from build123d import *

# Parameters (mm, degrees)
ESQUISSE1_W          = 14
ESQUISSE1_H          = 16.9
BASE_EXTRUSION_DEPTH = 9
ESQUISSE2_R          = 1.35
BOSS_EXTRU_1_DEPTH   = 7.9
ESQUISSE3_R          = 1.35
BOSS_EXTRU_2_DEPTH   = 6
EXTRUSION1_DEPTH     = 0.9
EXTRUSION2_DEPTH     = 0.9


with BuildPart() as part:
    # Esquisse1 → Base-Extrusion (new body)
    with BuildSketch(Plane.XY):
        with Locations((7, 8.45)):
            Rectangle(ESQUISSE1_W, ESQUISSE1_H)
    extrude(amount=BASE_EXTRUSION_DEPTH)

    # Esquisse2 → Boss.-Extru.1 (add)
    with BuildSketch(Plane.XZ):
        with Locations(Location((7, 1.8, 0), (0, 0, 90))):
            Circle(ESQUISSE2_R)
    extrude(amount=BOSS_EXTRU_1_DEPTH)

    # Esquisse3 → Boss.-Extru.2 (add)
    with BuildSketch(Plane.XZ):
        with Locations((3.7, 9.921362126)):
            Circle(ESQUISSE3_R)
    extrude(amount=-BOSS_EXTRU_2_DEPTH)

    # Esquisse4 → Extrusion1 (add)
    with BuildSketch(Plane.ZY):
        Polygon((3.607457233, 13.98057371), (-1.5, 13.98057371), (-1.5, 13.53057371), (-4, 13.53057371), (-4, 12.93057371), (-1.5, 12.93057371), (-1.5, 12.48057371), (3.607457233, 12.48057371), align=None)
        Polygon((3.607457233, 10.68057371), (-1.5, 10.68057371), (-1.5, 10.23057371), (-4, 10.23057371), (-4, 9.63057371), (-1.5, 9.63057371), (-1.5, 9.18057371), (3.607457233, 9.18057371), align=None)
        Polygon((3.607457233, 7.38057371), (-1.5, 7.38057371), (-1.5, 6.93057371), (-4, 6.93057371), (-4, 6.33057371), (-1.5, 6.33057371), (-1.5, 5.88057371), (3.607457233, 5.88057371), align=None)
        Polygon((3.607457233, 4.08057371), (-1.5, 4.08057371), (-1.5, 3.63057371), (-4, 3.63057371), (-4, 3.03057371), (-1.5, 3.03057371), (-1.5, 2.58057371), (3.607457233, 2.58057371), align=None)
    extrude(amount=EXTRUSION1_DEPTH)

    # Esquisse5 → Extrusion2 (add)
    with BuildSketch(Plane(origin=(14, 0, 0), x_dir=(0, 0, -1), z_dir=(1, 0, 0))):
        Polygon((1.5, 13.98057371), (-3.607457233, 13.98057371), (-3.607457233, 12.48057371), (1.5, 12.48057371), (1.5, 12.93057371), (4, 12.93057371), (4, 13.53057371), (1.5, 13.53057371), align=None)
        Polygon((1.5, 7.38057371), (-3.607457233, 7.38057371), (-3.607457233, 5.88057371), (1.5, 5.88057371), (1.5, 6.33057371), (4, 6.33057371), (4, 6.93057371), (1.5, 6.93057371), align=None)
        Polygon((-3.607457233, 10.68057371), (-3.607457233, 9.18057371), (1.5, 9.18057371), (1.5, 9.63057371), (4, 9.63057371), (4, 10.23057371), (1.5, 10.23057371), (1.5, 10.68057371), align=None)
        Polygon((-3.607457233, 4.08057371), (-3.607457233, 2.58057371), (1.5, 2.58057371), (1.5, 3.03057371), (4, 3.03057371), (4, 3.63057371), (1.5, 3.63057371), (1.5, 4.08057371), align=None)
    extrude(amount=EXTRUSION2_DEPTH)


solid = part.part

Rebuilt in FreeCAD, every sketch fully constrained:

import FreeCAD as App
import Part
import Sketcher

V = App.Vector

doc = App.newDocument("Part")
body = doc.addObject("PartDesign::Body", "Body")

sketch1 = doc.addObject("Sketcher::SketchObject", "Sketch")
body.addObject(sketch1)
sketch1.AttachmentSupport = (doc.XY_Plane, [""])
sketch1.MapMode = "FlatFace"
sketch1.addGeometry([
    Part.LineSegment(V(0, 17, 0), V(0, 0, 0)),
    Part.LineSegment(V(0, 0, 0), V(14, 0, 0)),
    Part.LineSegment(V(14, 0, 0), V(14, 17, 0)),
    Part.LineSegment(V(14, 17, 0), V(0, 17, 0)),
], False)
sketch1.addConstraint([
    Sketcher.Constraint("Coincident", 0, 2, 1, 1),
    Sketcher.Constraint("Coincident", 1, 2, 2, 1),
    Sketcher.Constraint("Coincident", 2, 2, 3, 1),
    Sketcher.Constraint("Coincident", 3, 2, 0, 1),
    Sketcher.Constraint("Vertical", 0),
    Sketcher.Constraint("Horizontal", 1),
    Sketcher.Constraint("Vertical", 2),
    Sketcher.Constraint("Horizontal", 3),
    Sketcher.Constraint("Coincident", 0, 2, -1, 1),
    Sketcher.Constraint("DistanceX", 1, 1, 1, 2, 14.0),
    Sketcher.Constraint("DistanceY", 0, 2, 0, 1, 16.9),
])
pad1 = doc.addObject("PartDesign::Pad", "Pad")
body.addObject(pad1)
pad1.Profile = sketch1
pad1.Length = 9

sketch2 = doc.addObject("Sketcher::SketchObject", "Sketch001")
body.addObject(sketch2)
sketch2.AttachmentSupport = (doc.XZ_Plane, [""])
sketch2.MapMode = "FlatFace"
sketch2.addGeometry(Part.Circle(V(7, 1.8, 0), V(0, 0, 1), 1.4), False)
sketch2.addConstraint([
    Sketcher.Constraint("Diameter", 0, 2.7),
    Sketcher.Constraint("DistanceX", -1, 1, 0, 3, 7.0),
    Sketcher.Constraint("DistanceY", -1, 1, 0, 3, 1.8),
])
pad2 = doc.addObject("PartDesign::Pad", "Pad001")
body.addObject(pad2)
pad2.Profile = sketch2
pad2.Length = 7.9

sketch3 = doc.addObject("Sketcher::SketchObject", "Sketch002")
body.addObject(sketch3)
sketch3.AttachmentSupport = (doc.XZ_Plane, [""])
sketch3.MapMode = "FlatFace"
sketch3.addGeometry(Part.Circle(V(3.7, 9.9, 0), V(0, 0, 1), 1.4), False)
sketch3.addConstraint([
    Sketcher.Constraint("Diameter", 0, 2.7),
    Sketcher.Constraint("DistanceX", -1, 1, 0, 3, 3.7),
    Sketcher.Constraint("DistanceY", -1, 1, 0, 3, 9.921362),
])
pad3 = doc.addObject("PartDesign::Pad", "Pad002")
body.addObject(pad3)
pad3.Profile = sketch3
pad3.Length = 6
pad3.Reversed = True

sketch4 = doc.addObject("Sketcher::SketchObject", "Sketch003")
body.addObject(sketch4)
sketch4.AttachmentSupport = (doc.YZ_Plane, [""])
sketch4.MapMode = "FlatFace"
sketch4.addGeometry([
    Part.LineSegment(V(13.98, 3.61, 0), V(13.98, -1.5, 0)),
    Part.LineSegment(V(13.98, -1.5, 0), V(13.53, -1.5, 0)),
    Part.LineSegment(V(13.53, -1.5, 0), V(13.53, -4, 0)),
    Part.LineSegment(V(13.53, -4, 0), V(12.93, -4, 0)),
    Part.LineSegment(V(12.93, -4, 0), V(12.93, -1.5, 0)),
    Part.LineSegment(V(12.93, -1.5, 0), V(12.48, -1.5, 0)),
    Part.LineSegment(V(12.48, -1.5, 0), V(12.48, 3.61, 0)),
    Part.LineSegment(V(12.48, 3.61, 0), V(13.98, 3.61, 0)),
    Part.LineSegment(V(10.68, 3.61, 0), V(10.68, -1.5, 0)),
    Part.LineSegment(V(10.68, -1.5, 0), V(10.23, -1.5, 0)),
    Part.LineSegment(V(10.23, -1.5, 0), V(10.23, -4, 0)),
    Part.LineSegment(V(10.23, -4, 0), V(9.63, -4, 0)),
    Part.LineSegment(V(9.63, -4, 0), V(9.63, -1.5, 0)),
    Part.LineSegment(V(9.63, -1.5, 0), V(9.18, -1.5, 0)),
    Part.LineSegment(V(9.18, -1.5, 0), V(9.18, 3.61, 0)),
    Part.LineSegment(V(9.18, 3.61, 0), V(10.68, 3.61, 0)),
    Part.LineSegment(V(7.38, 3.61, 0), V(7.38, -1.5, 0)),
    Part.LineSegment(V(7.38, -1.5, 0), V(6.93, -1.5, 0)),
    Part.LineSegment(V(6.93, -1.5, 0), V(6.93, -4, 0)),
    Part.LineSegment(V(6.93, -4, 0), V(6.33, -4, 0)),
    Part.LineSegment(V(6.33, -4, 0), V(6.33, -1.5, 0)),
    Part.LineSegment(V(6.33, -1.5, 0), V(5.88, -1.5, 0)),
    Part.LineSegment(V(5.88, -1.5, 0), V(5.88, 3.61, 0)),
    Part.LineSegment(V(5.88, 3.61, 0), V(7.38, 3.61, 0)),
    Part.LineSegment(V(4.08, 3.61, 0), V(4.08, -1.5, 0)),
    Part.LineSegment(V(4.08, -1.5, 0), V(3.63, -1.5, 0)),
    Part.LineSegment(V(3.63, -1.5, 0), V(3.63, -4, 0)),
    Part.LineSegment(V(3.63, -4, 0), V(3.03, -4, 0)),
    Part.LineSegment(V(3.03, -4, 0), V(3.03, -1.5, 0)),
    Part.LineSegment(V(3.03, -1.5, 0), V(2.58, -1.5, 0)),
    Part.LineSegment(V(2.58, -1.5, 0), V(2.58, 3.61, 0)),
    Part.LineSegment(V(2.58, 3.61, 0), V(4.08, 3.61, 0)),
], False)
sketch4.addConstraint([
    Sketcher.Constraint("Coincident", 0, 2, 1, 1),
    Sketcher.Constraint("Coincident", 1, 2, 2, 1),
    Sketcher.Constraint("Coincident", 2, 2, 3, 1),
    Sketcher.Constraint("Coincident", 3, 2, 4, 1),
    Sketcher.Constraint("Coincident", 4, 2, 5, 1),
    Sketcher.Constraint("Coincident", 5, 2, 6, 1),
    Sketcher.Constraint("Coincident", 6, 2, 7, 1),
    Sketcher.Constraint("Coincident", 7, 2, 0, 1),
    Sketcher.Constraint("Coincident", 8, 2, 9, 1),
    Sketcher.Constraint("Coincident", 9, 2, 10, 1),
    Sketcher.Constraint("Coincident", 10, 2, 11, 1),
    Sketcher.Constraint("Coincident", 11, 2, 12, 1),
    Sketcher.Constraint("Coincident", 12, 2, 13, 1),
    Sketcher.Constraint("Coincident", 13, 2, 14, 1),
    Sketcher.Constraint("Coincident", 14, 2, 15, 1),
    Sketcher.Constraint("Coincident", 15, 2, 8, 1),
    Sketcher.Constraint("Coincident", 16, 2, 17, 1),
    Sketcher.Constraint("Coincident", 17, 2, 18, 1),
    Sketcher.Constraint("Coincident", 18, 2, 19, 1),
    Sketcher.Constraint("Coincident", 19, 2, 20, 1),
    Sketcher.Constraint("Coincident", 20, 2, 21, 1),
    Sketcher.Constraint("Coincident", 21, 2, 22, 1),
    Sketcher.Constraint("Coincident", 22, 2, 23, 1),
    Sketcher.Constraint("Coincident", 23, 2, 16, 1),
    Sketcher.Constraint("Coincident", 24, 2, 25, 1),
    Sketcher.Constraint("Coincident", 25, 2, 26, 1),
    Sketcher.Constraint("Coincident", 26, 2, 27, 1),
    Sketcher.Constraint("Coincident", 27, 2, 28, 1),
    Sketcher.Constraint("Coincident", 28, 2, 29, 1),
    Sketcher.Constraint("Coincident", 29, 2, 30, 1),
    Sketcher.Constraint("Coincident", 30, 2, 31, 1),
    Sketcher.Constraint("Coincident", 31, 2, 24, 1),
    Sketcher.Constraint("Vertical", 0),
    Sketcher.Constraint("Horizontal", 1),
    Sketcher.Constraint("Vertical", 2),
    Sketcher.Constraint("Horizontal", 3),
    Sketcher.Constraint("Vertical", 4),
    Sketcher.Constraint("Horizontal", 5),
    Sketcher.Constraint("Vertical", 6),
    Sketcher.Constraint("Horizontal", 7),
    Sketcher.Constraint("Vertical", 8),
    Sketcher.Constraint("Horizontal", 9),
    Sketcher.Constraint("Vertical", 10),
    Sketcher.Constraint("Horizontal", 11),
    Sketcher.Constraint("Vertical", 12),
    Sketcher.Constraint("Horizontal", 13),
    Sketcher.Constraint("Vertical", 14),
    Sketcher.Constraint("Horizontal", 15),
    Sketcher.Constraint("Vertical", 16),
    Sketcher.Constraint("Horizontal", 17),
    Sketcher.Constraint("Vertical", 18),
    Sketcher.Constraint("Horizontal", 19),
    Sketcher.Constraint("Vertical", 20),
    Sketcher.Constraint("Horizontal", 21),
    Sketcher.Constraint("Vertical", 22),
    Sketcher.Constraint("Horizontal", 23),
    Sketcher.Constraint("Vertical", 24),
    Sketcher.Constraint("Horizontal", 25),
    Sketcher.Constraint("Vertical", 26),
    Sketcher.Constraint("Horizontal", 27),
    Sketcher.Constraint("Vertical", 28),
    Sketcher.Constraint("Horizontal", 29),
    Sketcher.Constraint("Vertical", 30),
    Sketcher.Constraint("Horizontal", 31),
    Sketcher.Constraint("Horizontal", 1, 2, 4, 2),
    Sketcher.Constraint("Horizontal", 5, 2, 8, 2),
    Sketcher.Constraint("Horizontal", 3, 2, 10, 2),
    Sketcher.Constraint("Horizontal", 9, 2, 12, 2),
    Sketcher.Constraint("Horizontal", 7, 2, 14, 2),
    Sketcher.Constraint("Horizontal", 13, 2, 16, 2),
    Sketcher.Constraint("Horizontal", 11, 2, 18, 2),
    Sketcher.Constraint("Horizontal", 17, 2, 20, 2),
    Sketcher.Constraint("Horizontal", 15, 2, 22, 2),
    Sketcher.Constraint("Horizontal", 21, 2, 24, 2),
    Sketcher.Constraint("Horizontal", 19, 2, 26, 2),
    Sketcher.Constraint("Horizontal", 25, 2, 28, 2),
    Sketcher.Constraint("Horizontal", 23, 2, 30, 2),
    Sketcher.Constraint("Equal", 1, 5),
    Sketcher.Constraint("Equal", 5, 9),
    Sketcher.Constraint("Equal", 3, 11),
    Sketcher.Constraint("Equal", 9, 13),
    Sketcher.Constraint("Equal", 13, 17),
    Sketcher.Constraint("Equal", 11, 19),
    Sketcher.Constraint("Equal", 17, 21),
    Sketcher.Constraint("Equal", 21, 25),
    Sketcher.Constraint("Equal", 19, 27),
    Sketcher.Constraint("Equal", 25, 29),
    Sketcher.Constraint("DistanceX", 3, 2, 3, 1, 0.6),
    Sketcher.Constraint("DistanceX", 7, 1, 7, 2, 1.5),
    Sketcher.Constraint("DistanceY", 2, 2, 2, 1, 2.5),
    Sketcher.Constraint("DistanceY", 2, 2, -1, 1, 4.0),
    Sketcher.Constraint("DistanceX", 8, 2, 5, 2, 1.8),
    Sketcher.Constraint("DistanceX", 16, 2, 13, 2, 1.8),
    Sketcher.Constraint("DistanceX", 24, 2, 21, 2, 1.8),
    Sketcher.Constraint("DistanceY", 0, 2, 0, 1, 5.107457),
    Sketcher.Constraint("DistanceX", -1, 1, 0, 2, 13.980574),
])
pad4 = doc.addObject("PartDesign::Pad", "Pad003")
body.addObject(pad4)
pad4.Profile = sketch4
pad4.Length = 0.9
pad4.Reversed = True

sketch5 = doc.addObject("Sketcher::SketchObject", "Sketch004")
body.addObject(sketch5)
sketch5.AttachmentSupport = (doc.YZ_Plane, [""])
sketch5.MapMode = "FlatFace"
sketch5.AttachmentOffset = App.Placement(V(0, 0, 14), App.Rotation())
sketch5.addGeometry([
    Part.LineSegment(V(13.98, -1.5, 0), V(13.98, 3.61, 0)),
    Part.LineSegment(V(13.98, 3.61, 0), V(12.48, 3.61, 0)),
    Part.LineSegment(V(12.48, 3.61, 0), V(12.48, -1.5, 0)),
    Part.LineSegment(V(12.48, -1.5, 0), V(12.93, -1.5, 0)),
    Part.LineSegment(V(12.93, -1.5, 0), V(12.93, -4, 0)),
    Part.LineSegment(V(12.93, -4, 0), V(13.53, -4, 0)),
    Part.LineSegment(V(13.53, -4, 0), V(13.53, -1.5, 0)),
    Part.LineSegment(V(13.53, -1.5, 0), V(13.98, -1.5, 0)),
    Part.LineSegment(V(7.38, -1.5, 0), V(7.38, 3.61, 0)),
    Part.LineSegment(V(7.38, 3.61, 0), V(5.88, 3.61, 0)),
    Part.LineSegment(V(5.88, 3.61, 0), V(5.88, -1.5, 0)),
    Part.LineSegment(V(5.88, -1.5, 0), V(6.33, -1.5, 0)),
    Part.LineSegment(V(6.33, -1.5, 0), V(6.33, -4, 0)),
    Part.LineSegment(V(6.33, -4, 0), V(6.93, -4, 0)),
    Part.LineSegment(V(6.93, -4, 0), V(6.93, -1.5, 0)),
    Part.LineSegment(V(6.93, -1.5, 0), V(7.38, -1.5, 0)),
    Part.LineSegment(V(10.68, 3.61, 0), V(9.18, 3.61, 0)),
    Part.LineSegment(V(9.18, 3.61, 0), V(9.18, -1.5, 0)),
    Part.LineSegment(V(9.18, -1.5, 0), V(9.63, -1.5, 0)),
    Part.LineSegment(V(9.63, -1.5, 0), V(9.63, -4, 0)),
    Part.LineSegment(V(9.63, -4, 0), V(10.23, -4, 0)),
    Part.LineSegment(V(10.23, -4, 0), V(10.23, -1.5, 0)),
    Part.LineSegment(V(10.23, -1.5, 0), V(10.68, -1.5, 0)),
    Part.LineSegment(V(10.68, -1.5, 0), V(10.68, 3.61, 0)),
    Part.LineSegment(V(4.08, 3.61, 0), V(2.58, 3.61, 0)),
    Part.LineSegment(V(2.58, 3.61, 0), V(2.58, -1.5, 0)),
    Part.LineSegment(V(2.58, -1.5, 0), V(3.03, -1.5, 0)),
    Part.LineSegment(V(3.03, -1.5, 0), V(3.03, -4, 0)),
    Part.LineSegment(V(3.03, -4, 0), V(3.63, -4, 0)),
    Part.LineSegment(V(3.63, -4, 0), V(3.63, -1.5, 0)),
    Part.LineSegment(V(3.63, -1.5, 0), V(4.08, -1.5, 0)),
    Part.LineSegment(V(4.08, -1.5, 0), V(4.08, 3.61, 0)),
], False)
sketch5.addConstraint([
    Sketcher.Constraint("Coincident", 0, 2, 1, 1),
    Sketcher.Constraint("Coincident", 1, 2, 2, 1),
    Sketcher.Constraint("Coincident", 2, 2, 3, 1),
    Sketcher.Constraint("Coincident", 3, 2, 4, 1),
    Sketcher.Constraint("Coincident", 4, 2, 5, 1),
    Sketcher.Constraint("Coincident", 5, 2, 6, 1),
    Sketcher.Constraint("Coincident", 6, 2, 7, 1),
    Sketcher.Constraint("Coincident", 7, 2, 0, 1),
    Sketcher.Constraint("Coincident", 8, 2, 9, 1),
    Sketcher.Constraint("Coincident", 9, 2, 10, 1),
    Sketcher.Constraint("Coincident", 10, 2, 11, 1),
    Sketcher.Constraint("Coincident", 11, 2, 12, 1),
    Sketcher.Constraint("Coincident", 12, 2, 13, 1),
    Sketcher.Constraint("Coincident", 13, 2, 14, 1),
    Sketcher.Constraint("Coincident", 14, 2, 15, 1),
    Sketcher.Constraint("Coincident", 15, 2, 8, 1),
    Sketcher.Constraint("Coincident", 16, 2, 17, 1),
    Sketcher.Constraint("Coincident", 17, 2, 18, 1),
    Sketcher.Constraint("Coincident", 18, 2, 19, 1),
    Sketcher.Constraint("Coincident", 19, 2, 20, 1),
    Sketcher.Constraint("Coincident", 20, 2, 21, 1),
    Sketcher.Constraint("Coincident", 21, 2, 22, 1),
    Sketcher.Constraint("Coincident", 22, 2, 23, 1),
    Sketcher.Constraint("Coincident", 23, 2, 16, 1),
    Sketcher.Constraint("Coincident", 24, 2, 25, 1),
    Sketcher.Constraint("Coincident", 25, 2, 26, 1),
    Sketcher.Constraint("Coincident", 26, 2, 27, 1),
    Sketcher.Constraint("Coincident", 27, 2, 28, 1),
    Sketcher.Constraint("Coincident", 28, 2, 29, 1),
    Sketcher.Constraint("Coincident", 29, 2, 30, 1),
    Sketcher.Constraint("Coincident", 30, 2, 31, 1),
    Sketcher.Constraint("Coincident", 31, 2, 24, 1),
    Sketcher.Constraint("Vertical", 0),
    Sketcher.Constraint("Horizontal", 1),
    Sketcher.Constraint("Vertical", 2),
    Sketcher.Constraint("Horizontal", 3),
    Sketcher.Constraint("Vertical", 4),
    Sketcher.Constraint("Horizontal", 5),
    Sketcher.Constraint("Vertical", 6),
    Sketcher.Constraint("Horizontal", 7),
    Sketcher.Constraint("Vertical", 8),
    Sketcher.Constraint("Horizontal", 9),
    Sketcher.Constraint("Vertical", 10),
    Sketcher.Constraint("Horizontal", 11),
    Sketcher.Constraint("Vertical", 12),
    Sketcher.Constraint("Horizontal", 13),
    Sketcher.Constraint("Vertical", 14),
    Sketcher.Constraint("Horizontal", 15),
    Sketcher.Constraint("Horizontal", 16),
    Sketcher.Constraint("Vertical", 17),
    Sketcher.Constraint("Horizontal", 18),
    Sketcher.Constraint("Vertical", 19),
    Sketcher.Constraint("Horizontal", 20),
    Sketcher.Constraint("Vertical", 21),
    Sketcher.Constraint("Horizontal", 22),
    Sketcher.Constraint("Vertical", 23),
    Sketcher.Constraint("Horizontal", 24),
    Sketcher.Constraint("Vertical", 25),
    Sketcher.Constraint("Horizontal", 26),
    Sketcher.Constraint("Vertical", 27),
    Sketcher.Constraint("Horizontal", 28),
    Sketcher.Constraint("Vertical", 29),
    Sketcher.Constraint("Horizontal", 30),
    Sketcher.Constraint("Vertical", 31),
    Sketcher.Constraint("Horizontal", 3, 2, 6, 2),
    Sketcher.Constraint("Horizontal", 1, 2, 8, 2),
    Sketcher.Constraint("Horizontal", 7, 2, 10, 2),
    Sketcher.Constraint("Horizontal", 5, 2, 12, 2),
    Sketcher.Constraint("Horizontal", 11, 2, 14, 2),
    Sketcher.Constraint("Horizontal", 9, 2, 16, 2),
    Sketcher.Constraint("Horizontal", 15, 2, 17, 2),
    Sketcher.Constraint("Horizontal", 13, 2, 19, 2),
    Sketcher.Constraint("Horizontal", 18, 2, 21, 2),
    Sketcher.Constraint("Horizontal", 23, 2, 24, 2),
    Sketcher.Constraint("Horizontal", 22, 2, 25, 2),
    Sketcher.Constraint("Horizontal", 20, 2, 27, 2),
    Sketcher.Constraint("Horizontal", 26, 2, 29, 2),
    Sketcher.Constraint("Equal", 3, 7),
    Sketcher.Constraint("Equal", 1, 9),
    Sketcher.Constraint("Equal", 7, 11),
    Sketcher.Constraint("Equal", 5, 13),
    Sketcher.Constraint("Equal", 9, 16),
    Sketcher.Constraint("Equal", 15, 18),
    Sketcher.Constraint("Equal", 13, 20),
    Sketcher.Constraint("Equal", 16, 24),
    Sketcher.Constraint("Equal", 22, 26),
    Sketcher.Constraint("Equal", 20, 28),
    Sketcher.Constraint("DistanceX", 1, 2, 1, 1, 1.5),
    Sketcher.Constraint("DistanceX", 5, 1, 5, 2, 0.6),
    Sketcher.Constraint("DistanceY", 4, 2, 4, 1, 2.5),
    Sketcher.Constraint("DistanceY", 4, 2, -1, 1, 4.0),
    Sketcher.Constraint("DistanceX", 13, 2, 4, 2, 6.0),
    Sketcher.Constraint("DistanceX", 8, 2, 16, 2, 1.8),
    Sketcher.Constraint("DistanceX", 24, 2, 9, 2, 3.3),
    Sketcher.Constraint("DistanceY", 0, 1, 0, 2, 5.107457),
    Sketcher.Constraint("DistanceX", -1, 1, 0, 2, 13.980574),
])
pad5 = doc.addObject("PartDesign::Pad", "Pad004")
body.addObject(pad5)
pad5.Profile = sketch5
pad5.Length = 0.9

doc.recompute()
